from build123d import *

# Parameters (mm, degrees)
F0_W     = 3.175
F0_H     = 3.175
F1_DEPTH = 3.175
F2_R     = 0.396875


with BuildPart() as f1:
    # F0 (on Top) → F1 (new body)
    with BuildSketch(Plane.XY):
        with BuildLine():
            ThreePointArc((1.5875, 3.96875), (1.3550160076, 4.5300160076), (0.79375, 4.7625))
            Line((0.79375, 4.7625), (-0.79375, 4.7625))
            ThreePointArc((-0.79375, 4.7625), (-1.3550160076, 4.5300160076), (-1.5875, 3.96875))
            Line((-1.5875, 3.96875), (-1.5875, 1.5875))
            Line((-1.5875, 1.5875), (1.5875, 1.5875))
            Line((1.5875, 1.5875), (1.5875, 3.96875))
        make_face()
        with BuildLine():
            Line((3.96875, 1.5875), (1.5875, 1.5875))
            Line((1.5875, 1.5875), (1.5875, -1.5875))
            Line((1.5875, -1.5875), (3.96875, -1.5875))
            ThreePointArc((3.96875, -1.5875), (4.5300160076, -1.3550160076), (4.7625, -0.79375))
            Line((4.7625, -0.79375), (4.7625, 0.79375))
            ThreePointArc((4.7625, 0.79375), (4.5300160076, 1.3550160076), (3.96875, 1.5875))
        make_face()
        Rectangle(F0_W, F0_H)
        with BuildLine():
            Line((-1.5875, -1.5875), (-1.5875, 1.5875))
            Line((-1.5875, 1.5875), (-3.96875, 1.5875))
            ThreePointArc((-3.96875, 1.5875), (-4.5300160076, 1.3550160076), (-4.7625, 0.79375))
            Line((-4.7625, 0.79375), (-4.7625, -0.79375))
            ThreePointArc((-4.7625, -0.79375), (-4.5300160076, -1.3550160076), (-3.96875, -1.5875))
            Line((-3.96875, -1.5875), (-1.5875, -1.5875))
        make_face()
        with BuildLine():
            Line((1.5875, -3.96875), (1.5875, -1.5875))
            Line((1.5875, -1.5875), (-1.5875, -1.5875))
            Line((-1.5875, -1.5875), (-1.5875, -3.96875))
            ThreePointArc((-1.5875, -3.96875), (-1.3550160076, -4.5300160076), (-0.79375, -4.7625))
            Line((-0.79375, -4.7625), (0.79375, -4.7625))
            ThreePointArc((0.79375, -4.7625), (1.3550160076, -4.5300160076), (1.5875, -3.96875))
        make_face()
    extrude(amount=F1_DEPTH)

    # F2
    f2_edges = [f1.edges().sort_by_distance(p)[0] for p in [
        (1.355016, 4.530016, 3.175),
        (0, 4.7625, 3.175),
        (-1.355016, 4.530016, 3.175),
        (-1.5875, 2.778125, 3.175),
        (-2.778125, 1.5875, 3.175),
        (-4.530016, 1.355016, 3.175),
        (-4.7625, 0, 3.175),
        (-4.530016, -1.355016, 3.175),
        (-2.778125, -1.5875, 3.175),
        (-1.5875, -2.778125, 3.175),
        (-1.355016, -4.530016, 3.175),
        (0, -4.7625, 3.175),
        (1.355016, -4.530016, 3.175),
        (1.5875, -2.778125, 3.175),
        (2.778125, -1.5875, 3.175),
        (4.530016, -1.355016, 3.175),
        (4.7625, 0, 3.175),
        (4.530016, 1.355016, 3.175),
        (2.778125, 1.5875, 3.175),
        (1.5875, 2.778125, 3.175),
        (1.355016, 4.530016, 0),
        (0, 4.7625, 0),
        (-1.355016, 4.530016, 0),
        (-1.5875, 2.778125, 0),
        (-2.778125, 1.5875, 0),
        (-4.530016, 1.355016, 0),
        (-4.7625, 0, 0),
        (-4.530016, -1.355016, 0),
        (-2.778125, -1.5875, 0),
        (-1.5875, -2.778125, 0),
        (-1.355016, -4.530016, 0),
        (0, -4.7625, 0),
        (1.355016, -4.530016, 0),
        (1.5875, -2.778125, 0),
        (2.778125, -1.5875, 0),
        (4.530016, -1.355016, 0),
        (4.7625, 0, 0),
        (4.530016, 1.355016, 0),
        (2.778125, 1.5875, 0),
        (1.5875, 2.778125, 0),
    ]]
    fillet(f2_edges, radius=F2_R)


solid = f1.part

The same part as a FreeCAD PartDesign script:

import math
import FreeCAD as App
import Part
import Sketcher
from FreeCAD import Vector
Q = App.Units.Quantity


def edges_at(feature, points):
    """Names of the edges that pass closest to the given points."""
    edges = feature.Shape.Edges
    near = lambda p: min(range(len(edges)), key=lambda i: edges[i].distToShape(Part.Vertex(*p))[0])
    return sorted({f"Edge{near(p) + 1}" for p in points})

doc = App.newDocument("Part")
body = doc.addObject("PartDesign::Body", "Body")

sketch1 = doc.addObject("Sketcher::SketchObject", "Sketch")
body.addObject(sketch1)
sketch1.AttachmentSupport = (doc.XY_Plane, [""])
sketch1.MapMode = "FlatFace"
sketch1.addGeometry(Part.ArcOfCircle(Part.Circle(Vector(0.79375, 3.96875, 0), Vector(0, 0, 1), 0.79375), math.radians(0), math.radians(90)), False)
sketch1.addGeometry(Part.LineSegment(Vector(0.79375, 4.7625, 0), Vector(-0.79375, 4.7625, 0)), False)
sketch1.addGeometry(Part.ArcOfCircle(Part.Circle(Vector(-0.79375, 3.96875, 0), Vector(0, 0, 1), 0.79375), math.radians(90), math.radians(180)), False)
sketch1.addGeometry(Part.LineSegment(Vector(-1.5875, 3.96875, 0), Vector(-1.5875, 1.5875, 0)), False)
sketch1.addGeometry(Part.LineSegment(Vector(-1.5875, 1.5875, 0), Vector(-3.96875, 1.5875, 0)), False)
sketch1.addGeometry(Part.ArcOfCircle(Part.Circle(Vector(-3.96875, 0.79375, 0), Vector(0, 0, 1), 0.79375), math.radians(90), math.radians(180)), False)
sketch1.addGeometry(Part.LineSegment(Vector(-4.7625, 0.79375, 0), Vector(-4.7625, -0.79375, 0)), False)
sketch1.addGeometry(Part.ArcOfCircle(Part.Circle(Vector(-3.96875, -0.79375, 0), Vector(0, 0, 1), 0.79375), math.radians(180), math.radians(270)), False)
sketch1.addGeometry(Part.LineSegment(Vector(-3.96875, -1.5875, 0), Vector(-1.5875, -1.5875, 0)), False)
sketch1.addGeometry(Part.LineSegment(Vector(-1.5875, -1.5875, 0), Vector(-1.5875, -3.96875, 0)), False)
sketch1.addGeometry(Part.ArcOfCircle(Part.Circle(Vector(-0.79375, -3.96875, 0), Vector(0, 0, 1), 0.79375), math.radians(180), math.radians(270)), False)
sketch1.addGeometry(Part.LineSegment(Vector(-0.79375, -4.7625, 0), Vector(0.79375, -4.7625, 0)), False)
sketch1.addGeometry(Part.ArcOfCircle(Part.Circle(Vector(0.79375, -3.96875, 0), Vector(0, 0, 1), 0.79375), math.radians(-90), math.radians(0)), False)
sketch1.addGeometry(Part.LineSegment(Vector(1.5875, -3.96875, 0), Vector(1.5875, -1.5875, 0)), False)
sketch1.addGeometry(Part.LineSegment(Vector(1.5875, -1.5875, 0), Vector(3.96875, -1.5875, 0)), False)
sketch1.addGeometry(Part.ArcOfCircle(Part.Circle(Vector(3.96875, -0.79375, 0), Vector(0, 0, 1), 0.79375), math.radians(-90), math.radians(0)), False)
sketch1.addGeometry(Part.LineSegment(Vector(4.7625, -0.79375, 0), Vector(4.7625, 0.79375, 0)), False)
sketch1.addGeometry(Part.ArcOfCircle(Part.Circle(Vector(3.96875, 0.79375, 0), Vector(0, 0, 1), 0.79375), math.radians(0), math.radians(90)), False)
sketch1.addGeometry(Part.LineSegment(Vector(3.96875, 1.5875, 0), Vector(1.5875, 1.5875, 0)), False)
sketch1.addGeometry(Part.LineSegment(Vector(1.5875, 1.5875, 0), Vector(1.5875, 3.96875, 0)), False)
sketch1.addConstraint(Sketcher.Constraint("Tangent", 0, 2, 1, 1))
sketch1.addConstraint(Sketcher.Constraint("Tangent", 1, 2, 2, 1))
sketch1.addConstraint(Sketcher.Constraint("Tangent", 2, 2, 3, 1))
sketch1.addConstraint(Sketcher.Constraint("Coincident", 3, 2, 4, 1))
sketch1.addConstraint(Sketcher.Constraint("Tangent", 4, 2, 5, 1))
sketch1.addConstraint(Sketcher.Constraint("Tangent", 5, 2, 6, 1))
sketch1.addConstraint(Sketcher.Constraint("Tangent", 6, 2, 7, 1))
sketch1.addConstraint(Sketcher.Constraint("Tangent", 7, 2, 8, 1))
sketch1.addConstraint(Sketcher.Constraint("Coincident", 8, 2, 9, 1))
sketch1.addConstraint(Sketcher.Constraint("Tangent", 9, 2, 10, 1))
sketch1.addConstraint(Sketcher.Constraint("Tangent", 10, 2, 11, 1))
sketch1.addConstraint(Sketcher.Constraint("Tangent", 11, 2, 12, 1))
sketch1.addConstraint(Sketcher.Constraint("Tangent", 12, 2, 13, 1))
sketch1.addConstraint(Sketcher.Constraint("Coincident", 13, 2, 14, 1))
sketch1.addConstraint(Sketcher.Constraint("Tangent", 14, 2, 15, 1))
sketch1.addConstraint(Sketcher.Constraint("Tangent", 15, 2, 16, 1))
sketch1.addConstraint(Sketcher.Constraint("Tangent", 16, 2, 17, 1))
sketch1.addConstraint(Sketcher.Constraint("Tangent", 17, 2, 18, 1))
sketch1.addConstraint(Sketcher.Constraint("Coincident", 18, 2, 19, 1))
sketch1.addConstraint(Sketcher.Constraint("Tangent", 19, 2, 0, 1))
sketch1.addConstraint(Sketcher.Constraint("Horizontal", 1))
sketch1.addConstraint(Sketcher.Constraint("Vertical", 3))
sketch1.addConstraint(Sketcher.Constraint("Horizontal", 4))
sketch1.addConstraint(Sketcher.Constraint("Vertical", 6))
sketch1.addConstraint(Sketcher.Constraint("Horizontal", 8))
sketch1.addConstraint(Sketcher.Constraint("Vertical", 9))
sketch1.addConstraint(Sketcher.Constraint("Horizontal", 11))
sketch1.addConstraint(Sketcher.Constraint("Vertical", 13))
sketch1.addConstraint(Sketcher.Constraint("Horizontal", 14))
sketch1.addConstraint(Sketcher.Constraint("Vertical", 16))
sketch1.addConstraint(Sketcher.Constraint("Horizontal", 18))
sketch1.addConstraint(Sketcher.Constraint("Vertical", 19))
sketch1.addConstraint(Sketcher.Constraint("Equal", 0, 2))
sketch1.addConstraint(Sketcher.Constraint("Equal", 2, 5))
sketch1.addConstraint(Sketcher.Constraint("Equal", 5, 7))
sketch1.addConstraint(Sketcher.Constraint("Equal", 7, 10))
sketch1.addConstraint(Sketcher.Constraint("Equal", 10, 12))
sketch1.addConstraint(Sketcher.Constraint("Equal", 12, 15))
sketch1.addConstraint(Sketcher.Constraint("Equal", 15, 17))
sketch1.addConstraint(Sketcher.Constraint("Symmetric", 0, 3, 10, 3, -1, 1))
sketch1.addConstraint(Sketcher.Constraint("Symmetric", 5, 3, 15, 3, -1, 1))
sketch1.addConstraint(Sketcher.Constraint("Symmetric", 8, 2, 13, 2, -2))
sketch1.addConstraint(Sketcher.Constraint("Symmetric", 3, 2, 18, 2, -2))
sketch1.addConstraint(Sketcher.Constraint("Equal", 18, 3))
sketch1.addConstraint(Sketcher.Constraint("Equal", 11, 6))
sketch1.addConstraint(Sketcher.Constraint("Radius", 0, Q("0.03125 in")))
sketch1.addConstraint(Sketcher.Constraint("DistanceX", 1, 2, 1, 1, Q("0.0625 in")))
sketch1.addConstraint(Sketcher.Constraint("DistanceX", 4, 2, 4, 1, Q("0.09375 in")))
pad1 = doc.addObject("PartDesign::Pad", "Pad")
body.addObject(pad1)
pad1.Profile = sketch1
pad1.Length = Q("0.125 in")
doc.recompute()

fillet = doc.addObject("PartDesign::Fillet", "Fillet")
body.addObject(fillet)
fillet.Base = (pad1, edges_at(pad1, [
    (1.355, 4.53, 3.175),
    (0, 4.763, 3.175),
    (-1.355, 4.53, 3.175),
    (-1.587, 2.778, 3.175),
    (-2.778, 1.587, 3.175),
    (-4.53, 1.355, 3.175),
    (-4.763, 0, 3.175),
    (-4.53, -1.355, 3.175),
    (-2.778, -1.587, 3.175),
    (-1.587, -2.778, 3.175),
    (-1.355, -4.53, 3.175),
    (0, -4.763, 3.175),
    (1.355, -4.53, 3.175),
    (1.587, -2.778, 3.175),
    (2.778, -1.587, 3.175),
    (4.53, -1.355, 3.175),
    (4.763, 0, 3.175),
    (4.53, 1.355, 3.175),
    (2.778, 1.587, 3.175),
    (1.587, 2.778, 3.175),
    (1.355, 4.53, 0),
    (0, 4.763, 0),
    (-1.355, 4.53, 0),
    (-1.587, 2.778, 0),
    (-2.778, 1.587, 0),
    (-4.53, 1.355, 0),
    (-4.763, 0, 0),
    (-4.53, -1.355, 0),
    (-2.778, -1.587, 0),
    (-1.587, -2.778, 0),
    (-1.355, -4.53, 0),
    (0, -4.763, 0),
    (1.355, -4.53, 0),
    (1.587, -2.778, 0),
    (2.778, -1.587, 0),
    (4.53, -1.355, 0),
    (4.763, 0, 0),
    (4.53, 1.355, 0),
    (2.778, 1.587, 0),
    (1.587, 2.778, 0),
]))
fillet.Radius = Q("0.015625 in")

doc.recompute()
